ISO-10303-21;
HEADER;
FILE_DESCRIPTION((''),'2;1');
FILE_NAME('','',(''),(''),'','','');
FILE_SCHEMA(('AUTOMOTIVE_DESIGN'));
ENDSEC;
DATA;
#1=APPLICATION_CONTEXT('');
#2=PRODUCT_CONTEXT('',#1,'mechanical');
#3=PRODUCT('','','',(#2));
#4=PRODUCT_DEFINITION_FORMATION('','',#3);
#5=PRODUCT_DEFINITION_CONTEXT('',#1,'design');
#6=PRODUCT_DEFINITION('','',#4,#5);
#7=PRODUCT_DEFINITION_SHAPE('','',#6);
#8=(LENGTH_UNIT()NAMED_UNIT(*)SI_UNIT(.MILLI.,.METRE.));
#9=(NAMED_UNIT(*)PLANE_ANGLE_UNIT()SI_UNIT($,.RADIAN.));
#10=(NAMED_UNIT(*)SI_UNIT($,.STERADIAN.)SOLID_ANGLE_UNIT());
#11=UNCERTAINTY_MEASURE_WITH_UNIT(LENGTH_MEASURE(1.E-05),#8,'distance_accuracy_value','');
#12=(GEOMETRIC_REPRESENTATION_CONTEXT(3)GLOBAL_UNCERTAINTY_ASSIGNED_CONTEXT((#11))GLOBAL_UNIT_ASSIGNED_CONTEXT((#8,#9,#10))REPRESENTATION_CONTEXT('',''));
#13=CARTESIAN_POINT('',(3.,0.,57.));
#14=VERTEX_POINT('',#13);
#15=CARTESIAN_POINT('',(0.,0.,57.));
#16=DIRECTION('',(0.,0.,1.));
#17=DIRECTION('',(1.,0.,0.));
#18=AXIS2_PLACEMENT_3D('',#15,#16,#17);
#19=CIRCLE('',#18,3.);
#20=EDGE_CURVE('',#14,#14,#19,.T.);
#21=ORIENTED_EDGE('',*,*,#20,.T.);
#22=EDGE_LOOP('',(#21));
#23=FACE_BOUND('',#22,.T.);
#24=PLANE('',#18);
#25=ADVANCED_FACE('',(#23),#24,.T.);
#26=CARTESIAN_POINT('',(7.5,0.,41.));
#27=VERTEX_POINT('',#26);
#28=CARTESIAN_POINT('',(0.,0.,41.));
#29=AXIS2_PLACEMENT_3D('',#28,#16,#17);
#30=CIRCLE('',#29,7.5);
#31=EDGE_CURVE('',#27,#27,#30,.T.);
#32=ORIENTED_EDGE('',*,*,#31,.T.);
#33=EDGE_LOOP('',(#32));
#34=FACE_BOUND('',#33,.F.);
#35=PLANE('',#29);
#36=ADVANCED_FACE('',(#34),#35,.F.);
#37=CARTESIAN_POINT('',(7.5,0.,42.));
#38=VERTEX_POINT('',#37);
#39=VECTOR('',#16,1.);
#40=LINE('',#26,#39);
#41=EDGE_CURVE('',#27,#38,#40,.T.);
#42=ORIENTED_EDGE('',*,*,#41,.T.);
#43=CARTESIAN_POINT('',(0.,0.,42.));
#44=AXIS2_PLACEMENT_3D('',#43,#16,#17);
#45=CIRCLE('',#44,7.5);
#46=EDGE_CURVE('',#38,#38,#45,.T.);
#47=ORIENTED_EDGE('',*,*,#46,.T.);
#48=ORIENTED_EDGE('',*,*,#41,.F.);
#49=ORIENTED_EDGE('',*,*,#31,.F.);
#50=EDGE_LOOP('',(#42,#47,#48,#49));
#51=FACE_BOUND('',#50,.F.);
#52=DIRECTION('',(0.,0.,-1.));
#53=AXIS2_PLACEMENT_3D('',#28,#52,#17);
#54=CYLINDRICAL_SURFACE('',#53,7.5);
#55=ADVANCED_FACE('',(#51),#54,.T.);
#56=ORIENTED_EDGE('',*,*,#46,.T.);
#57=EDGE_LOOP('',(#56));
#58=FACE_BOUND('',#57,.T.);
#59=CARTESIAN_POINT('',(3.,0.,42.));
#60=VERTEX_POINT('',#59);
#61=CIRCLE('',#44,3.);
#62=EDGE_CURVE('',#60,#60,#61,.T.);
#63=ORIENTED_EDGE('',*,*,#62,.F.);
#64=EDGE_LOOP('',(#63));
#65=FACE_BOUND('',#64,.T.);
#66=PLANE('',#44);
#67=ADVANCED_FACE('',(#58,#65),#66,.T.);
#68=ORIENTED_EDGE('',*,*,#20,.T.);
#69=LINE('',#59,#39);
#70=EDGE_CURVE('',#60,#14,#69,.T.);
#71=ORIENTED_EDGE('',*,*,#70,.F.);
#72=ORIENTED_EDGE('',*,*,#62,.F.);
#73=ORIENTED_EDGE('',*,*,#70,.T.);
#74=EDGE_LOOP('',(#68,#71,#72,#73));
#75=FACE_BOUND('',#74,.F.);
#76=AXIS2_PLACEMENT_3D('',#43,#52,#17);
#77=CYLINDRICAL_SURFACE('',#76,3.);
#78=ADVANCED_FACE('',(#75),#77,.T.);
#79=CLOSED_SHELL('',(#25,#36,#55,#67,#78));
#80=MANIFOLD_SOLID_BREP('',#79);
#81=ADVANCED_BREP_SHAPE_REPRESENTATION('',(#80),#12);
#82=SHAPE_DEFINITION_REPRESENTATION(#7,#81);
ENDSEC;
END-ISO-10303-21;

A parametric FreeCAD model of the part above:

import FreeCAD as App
import Part
import Sketcher
Q = App.Units.Quantity

doc = App.newDocument("Part")
body = doc.addObject("PartDesign::Body", "Body")

# Sketch on XY plane
sketch1 = body.newObject("Sketcher::SketchObject", "Sketch")
sketch1.AttachmentSupport = (doc.getObject("XY_Plane"), [""])
sketch1.MapMode = "FlatFace"
sketch1.AttachmentOffset = App.Placement(App.Vector(0, 0, 42), App.Rotation())
sketch1.addGeometry(Part.Circle(App.Vector(0, 0, 0), App.Vector(0, 0, 1), 3), False)
sketch1.addConstraint([
    Sketcher.Constraint("Coincident", 0, 3, -1, 1),
    Sketcher.Constraint("Diameter", 0, Q("6 mm")),
])
pad1 = body.newObject("PartDesign::Pad", "Pad")
pad1.Profile = sketch1
pad1.Length = 15
body2 = doc.addObject("PartDesign::Body", "Body001")

# Sketch on XY plane
sketch2 = body2.newObject("Sketcher::SketchObject", "Sketch001")
sketch2.AttachmentSupport = (doc.getObject("XY_Plane001"), [""])
sketch2.MapMode = "FlatFace"
sketch2.AttachmentOffset = App.Placement(App.Vector(0, 0, 41), App.Rotation())
sketch2.addGeometry(Part.Circle(App.Vector(0, 0, 0), App.Vector(0, 0, 1), 8), False)
sketch2.addConstraint([
    Sketcher.Constraint("Coincident", 0, 3, -1, 1),
    Sketcher.Constraint("Diameter", 0, Q("15 mm")),
])
pad2 = body2.newObject("PartDesign::Pad", "Pad001")
pad2.Profile = sketch2
pad2.Length = 1
body3 = doc.addObject("PartDesign::Body", "Body002")
body3.AllowCompound = True

# Sketch on XY plane
sketch3 = body3.newObject("Sketcher::SketchObject", "Sketch002")
sketch3.AttachmentSupport = (doc.getObject("XY_Plane002"), [""])
sketch3.MapMode = "FlatFace"
sketch3.AttachmentOffset = App.Placement(App.Vector(0, 0, 1), App.Rotation())
sketch3.addGeometry(Part.Circle(App.Vector(0, 0, 0), App.Vector(0, 0, 1), 12), False)
sketch3.addConstraint([
    Sketcher.Constraint("Coincident", 0, 3, -1, 1),
    Sketcher.Constraint("Diameter", 0, Q("23 mm")),
])
pad3 = body3.newObject("PartDesign::Pad", "Pad002")
pad3.Profile = sketch3
pad3.Length = 40
doc.recompute()

boolean = body3.newObject("PartDesign::Boolean", "Boolean")
boolean.Type = "Fuse"
boolean.addObjects([body])
doc.recompute()

boolean2 = body3.newObject("PartDesign::Boolean", "Boolean001")
boolean2.Type = "Fuse"
boolean2.addObjects([body2])

# Sketch on XY plane
sketch4 = body3.newObject("Sketcher::SketchObject", "Sketch003")
sketch4.AttachmentSupport = (doc.getObject("XY_Plane002"), [""])
sketch4.MapMode = "FlatFace"
sketch4.AttachmentOffset = App.Placement(App.Vector(0, 0, 41), App.Rotation())
sketch4.addGeometry([
    Part.Circle(App.Vector(8.2, 4.8, 0), App.Vector(0, 0, 1), 1),
    Part.Circle(App.Vector(-8.2, 4.8, 0), App.Vector(0, 0, 1), 1),
    Part.Circle(App.Vector(0, -9.5, 0), App.Vector(0, 0, 1), 1),
], False)
sketch4.addConstraint([
    Sketcher.Constraint("Equal", 0, 1),
    Sketcher.Constraint("Equal", 1, 2),
    Sketcher.Constraint("Symmetric", 0, 3, 1, 3, -2),
    Sketcher.Constraint("PointOnObject", 2, 3, -2),
    Sketcher.Constraint("Diameter", 0, Q("2 mm")),
    Sketcher.Constraint("DistanceY", 2, 3, -1, 1, Q("9.5 mm")),
    Sketcher.Constraint("DistanceY", -1, 1, 0, 3, Q("4.75 mm")),
    Sketcher.Constraint("DistanceX", -1, 1, 0, 3, Q("8.227241 mm")),
])
pocket1 = body3.newObject("PartDesign::Pocket", "Pocket")
pocket1.Profile = sketch4
pocket1.Length = 4
body4 = doc.addObject("PartDesign::Body", "Body003")

# Sketch on XY plane
sketch5 = body4.newObject("Sketcher::SketchObject", "Sketch004")
sketch5.AttachmentSupport = (doc.getObject("XY_Plane003"), [""])
sketch5.MapMode = "FlatFace"
sketch5.AttachmentOffset = App.Placement(App.Vector(0, 0, 41), App.Rotation())
sketch5.addGeometry(Part.Circle(App.Vector(0, 0, 0), App.Vector(0, 0, 1), 23), False)
sketch5.addConstraint([
    Sketcher.Constraint("Coincident", 0, 3, -1, 1),
    Sketcher.Constraint("Diameter", 0, Q("46.6923 mm")),
])
pad4 = body4.newObject("PartDesign::Pad", "Pad003")
pad4.Profile = sketch5
pad4.Length = 23
doc.recompute()

boolean3 = body4.newObject("PartDesign::Boolean", "Boolean002")
boolean3.Type = "Common"
boolean3.addObjects([body3])

doc.recompute()
